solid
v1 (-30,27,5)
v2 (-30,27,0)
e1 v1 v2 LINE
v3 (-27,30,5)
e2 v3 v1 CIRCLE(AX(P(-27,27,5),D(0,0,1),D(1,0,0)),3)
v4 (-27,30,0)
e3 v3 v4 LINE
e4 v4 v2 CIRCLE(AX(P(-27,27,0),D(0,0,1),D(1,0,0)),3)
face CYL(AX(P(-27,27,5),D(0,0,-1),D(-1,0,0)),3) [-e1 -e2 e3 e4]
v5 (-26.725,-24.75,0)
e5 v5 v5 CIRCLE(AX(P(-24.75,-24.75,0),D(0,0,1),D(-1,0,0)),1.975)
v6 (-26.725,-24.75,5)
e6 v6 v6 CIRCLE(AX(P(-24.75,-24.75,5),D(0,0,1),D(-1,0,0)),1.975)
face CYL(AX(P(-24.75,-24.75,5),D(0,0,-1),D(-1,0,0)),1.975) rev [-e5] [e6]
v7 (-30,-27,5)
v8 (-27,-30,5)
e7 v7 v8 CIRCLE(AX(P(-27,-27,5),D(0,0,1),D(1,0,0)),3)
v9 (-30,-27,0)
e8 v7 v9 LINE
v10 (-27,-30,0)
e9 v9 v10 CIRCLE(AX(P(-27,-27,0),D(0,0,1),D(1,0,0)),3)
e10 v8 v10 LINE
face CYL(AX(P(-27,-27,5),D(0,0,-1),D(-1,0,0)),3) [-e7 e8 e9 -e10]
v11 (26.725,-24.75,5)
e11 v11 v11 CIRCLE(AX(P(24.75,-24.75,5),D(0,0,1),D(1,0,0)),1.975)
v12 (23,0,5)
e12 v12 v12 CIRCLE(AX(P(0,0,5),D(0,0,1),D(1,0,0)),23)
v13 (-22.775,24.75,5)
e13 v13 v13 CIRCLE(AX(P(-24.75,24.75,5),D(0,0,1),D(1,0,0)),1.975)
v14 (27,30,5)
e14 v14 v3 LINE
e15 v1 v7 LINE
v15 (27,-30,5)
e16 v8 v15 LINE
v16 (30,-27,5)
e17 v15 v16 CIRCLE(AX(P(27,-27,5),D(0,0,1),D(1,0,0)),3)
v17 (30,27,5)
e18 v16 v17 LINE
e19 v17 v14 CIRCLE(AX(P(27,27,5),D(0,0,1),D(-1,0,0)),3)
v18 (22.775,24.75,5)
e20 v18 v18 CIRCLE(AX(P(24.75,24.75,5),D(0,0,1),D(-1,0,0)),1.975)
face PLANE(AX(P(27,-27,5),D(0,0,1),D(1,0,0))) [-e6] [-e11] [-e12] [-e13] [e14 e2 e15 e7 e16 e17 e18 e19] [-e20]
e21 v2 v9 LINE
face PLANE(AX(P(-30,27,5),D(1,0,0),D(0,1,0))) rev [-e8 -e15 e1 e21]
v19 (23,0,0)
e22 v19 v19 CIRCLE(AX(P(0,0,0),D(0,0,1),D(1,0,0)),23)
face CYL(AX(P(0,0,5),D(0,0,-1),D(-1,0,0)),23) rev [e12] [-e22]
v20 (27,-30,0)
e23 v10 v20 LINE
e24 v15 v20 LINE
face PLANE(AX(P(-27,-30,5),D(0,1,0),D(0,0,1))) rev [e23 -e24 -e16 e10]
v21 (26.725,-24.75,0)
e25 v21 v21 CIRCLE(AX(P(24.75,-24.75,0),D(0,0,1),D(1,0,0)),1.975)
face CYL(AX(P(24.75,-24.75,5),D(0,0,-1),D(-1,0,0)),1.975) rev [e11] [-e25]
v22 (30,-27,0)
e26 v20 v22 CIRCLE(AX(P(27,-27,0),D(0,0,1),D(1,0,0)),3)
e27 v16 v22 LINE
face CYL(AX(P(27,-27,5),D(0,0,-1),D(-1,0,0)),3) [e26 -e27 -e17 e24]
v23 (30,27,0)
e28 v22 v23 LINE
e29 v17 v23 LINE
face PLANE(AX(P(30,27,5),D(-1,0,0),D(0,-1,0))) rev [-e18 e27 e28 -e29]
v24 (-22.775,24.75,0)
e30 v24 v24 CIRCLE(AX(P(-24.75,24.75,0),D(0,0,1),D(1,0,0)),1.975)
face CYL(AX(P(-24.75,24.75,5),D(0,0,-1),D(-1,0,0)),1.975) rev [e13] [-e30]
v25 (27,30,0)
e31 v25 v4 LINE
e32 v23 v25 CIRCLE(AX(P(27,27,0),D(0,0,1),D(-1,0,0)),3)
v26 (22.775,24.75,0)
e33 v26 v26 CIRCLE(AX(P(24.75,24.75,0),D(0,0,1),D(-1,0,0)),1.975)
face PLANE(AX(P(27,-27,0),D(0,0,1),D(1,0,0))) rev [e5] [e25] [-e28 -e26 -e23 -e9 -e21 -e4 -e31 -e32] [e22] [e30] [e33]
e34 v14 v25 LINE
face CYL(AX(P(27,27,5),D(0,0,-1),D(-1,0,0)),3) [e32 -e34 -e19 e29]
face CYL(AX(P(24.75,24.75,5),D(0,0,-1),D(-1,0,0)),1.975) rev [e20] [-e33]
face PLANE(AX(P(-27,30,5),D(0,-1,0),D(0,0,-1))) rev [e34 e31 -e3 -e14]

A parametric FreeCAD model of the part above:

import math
import FreeCAD as App
import Part
import Sketcher
Q = App.Units.Quantity

doc = App.newDocument("Part")
body = doc.addObject("PartDesign::Body", "Body")

sketch1 = doc.addObject("Sketcher::SketchObject", "Sketch")
body.addObject(sketch1)
sketch1.AttachmentSupport = (doc.XY_Plane, [""])
sketch1.MapMode = "FlatFace"
sketch1.addGeometry(Part.LineSegment(App.Vector(27, 30, 0), App.Vector(-27, 30, 0)), False)
sketch1.addGeometry(Part.ArcOfCircle(Part.Circle(App.Vector(-27, 27, 0), App.Vector(0, 0, 1), 3), math.radians(90), math.radians(180)), False)
sketch1.addGeometry(Part.LineSegment(App.Vector(-30, 27, 0), App.Vector(-30, -27, 0)), False)
sketch1.addGeometry(Part.ArcOfCircle(Part.Circle(App.Vector(-27, -27, 0), App.Vector(0, 0, 1), 3), math.radians(180), math.radians(270)), False)
sketch1.addGeometry(Part.LineSegment(App.Vector(-27, -30, 0), App.Vector(27, -30, 0)), False)
sketch1.addGeometry(Part.ArcOfCircle(Part.Circle(App.Vector(27, -27, 0), App.Vector(0, 0, 1), 3), math.radians(-90), math.radians(0)), False)
sketch1.addGeometry(Part.LineSegment(App.Vector(30, -27, 0), App.Vector(30, 27, 0)), False)
sketch1.addGeometry(Part.ArcOfCircle(Part.Circle(App.Vector(27, 27, 0), App.Vector(0, 0, 1), 3), math.radians(0), math.radians(90)), False)
sketch1.addGeometry(Part.Circle(App.Vector(24.8, -24.8, 0), App.Vector(0, 0, 1), 2), False)
sketch1.addGeometry(Part.Circle(App.Vector(-24.8, -24.8, 0), App.Vector(0, 0, 1), 2), False)
sketch1.addGeometry(Part.Circle(App.Vector(24.8, 24.8, 0), App.Vector(0, 0, 1), 2), False)
sketch1.addGeometry(Part.Circle(App.Vector(0, 0, 0), App.Vector(0, 0, 1), 23), False)
sketch1.addGeometry(Part.Circle(App.Vector(-24.8, 24.8, 0), App.Vector(0, 0, 1), 2), False)
sketch1.addConstraint(Sketcher.Constraint("Tangent", 0, 2, 1, 1))
sketch1.addConstraint(Sketcher.Constraint("Tangent", 1, 2, 2, 1))
sketch1.addConstraint(Sketcher.Constraint("Tangent", 2, 2, 3, 1))
sketch1.addConstraint(Sketcher.Constraint("Tangent", 3, 2, 4, 1))
sketch1.addConstraint(Sketcher.Constraint("Tangent", 4, 2, 5, 1))
sketch1.addConstraint(Sketcher.Constraint("Tangent", 5, 2, 6, 1))
sketch1.addConstraint(Sketcher.Constraint("Tangent", 6, 2, 7, 1))
sketch1.addConstraint(Sketcher.Constraint("Tangent", 7, 2, 0, 1))
sketch1.addConstraint(Sketcher.Constraint("Horizontal", 0))
sketch1.addConstraint(Sketcher.Constraint("Vertical", 2))
sketch1.addConstraint(Sketcher.Constraint("Horizontal", 4))
sketch1.addConstraint(Sketcher.Constraint("Vertical", 6))
sketch1.addConstraint(Sketcher.Constraint("Coincident", 11, 3, -1, 1))
sketch1.addConstraint(Sketcher.Constraint("Equal", 1, 3))
sketch1.addConstraint(Sketcher.Constraint("Equal", 3, 5))
sketch1.addConstraint(Sketcher.Constraint("Equal", 5, 7))
sketch1.addConstraint(Sketcher.Constraint("Equal", 8, 9))
sketch1.addConstraint(Sketcher.Constraint("Equal", 9, 10))
sketch1.addConstraint(Sketcher.Constraint("Equal", 10, 12))
sketch1.addConstraint(Sketcher.Constraint("Symmetric", 1, 3, 5, 3, -1, 1))
sketch1.addConstraint(Sketcher.Constraint("Symmetric", 9, 3, 10, 3, -1, 1))
sketch1.addConstraint(Sketcher.Constraint("Symmetric", 8, 3, 12, 3, -1, 1))
sketch1.addConstraint(Sketcher.Constraint("Symmetric", 8, 3, 9, 3, -2))
sketch1.addConstraint(Sketcher.Constraint("Equal", 4, 2))
sketch1.addConstraint(Sketcher.Constraint("Diameter", 11, Q("46 mm")))
sketch1.addConstraint(Sketcher.Constraint("Radius", 1, Q("3 mm")))
sketch1.addConstraint(Sketcher.Constraint("Diameter", 8, Q("3.95 mm")))
sketch1.addConstraint(Sketcher.Constraint("DistanceX", 0, 2, 0, 1, Q("54 mm")))
sketch1.addConstraint(Sketcher.Constraint("DistanceX", 9, 3, 8, 3, Q("49.5 mm")))
sketch1.addConstraint(Sketcher.Constraint("DistanceY", 8, 3, 10, 3, Q("49.5 mm")))
pad1 = doc.addObject("PartDesign::Pad", "Pad")
body.addObject(pad1)
pad1.Profile = sketch1
pad1.Length = 5

doc.recompute()
